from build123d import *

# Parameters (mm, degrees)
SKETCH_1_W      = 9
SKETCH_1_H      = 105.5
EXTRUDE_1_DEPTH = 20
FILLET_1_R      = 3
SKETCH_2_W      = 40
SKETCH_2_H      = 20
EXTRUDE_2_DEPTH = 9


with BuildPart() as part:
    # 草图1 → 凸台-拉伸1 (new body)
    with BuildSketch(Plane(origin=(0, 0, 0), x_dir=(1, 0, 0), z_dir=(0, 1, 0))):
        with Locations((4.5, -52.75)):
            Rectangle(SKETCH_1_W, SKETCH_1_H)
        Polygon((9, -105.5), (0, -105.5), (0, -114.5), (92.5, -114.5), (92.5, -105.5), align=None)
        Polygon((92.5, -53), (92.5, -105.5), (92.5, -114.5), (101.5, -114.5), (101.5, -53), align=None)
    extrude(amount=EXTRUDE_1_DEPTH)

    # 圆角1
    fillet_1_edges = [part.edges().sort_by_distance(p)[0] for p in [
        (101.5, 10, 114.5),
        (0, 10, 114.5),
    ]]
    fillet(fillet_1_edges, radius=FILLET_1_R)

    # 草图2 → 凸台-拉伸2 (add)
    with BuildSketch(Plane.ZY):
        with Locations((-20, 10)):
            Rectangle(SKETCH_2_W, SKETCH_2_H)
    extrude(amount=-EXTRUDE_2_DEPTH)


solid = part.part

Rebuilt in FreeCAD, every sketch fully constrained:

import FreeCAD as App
import Part
import Sketcher
from FreeCAD import Vector
Q = App.Units.Quantity


def edges_at(feature, points):
    """Names of the edges that pass closest to the given points."""
    edges = feature.Shape.Edges
    near = lambda p: min(range(len(edges)), key=lambda i: edges[i].distToShape(Part.Vertex(*p))[0])
    return sorted({f"Edge{near(p) + 1}" for p in points})


def add_polygon(sketch, points):
    """Adds a closed chain of lines whose ends are joined by coincident constraints."""
    first, n = sketch.GeometryCount, len(points)
    for a, b in zip(points, points[1:] + points[:1]):
        sketch.addGeometry(Part.LineSegment(App.Vector(*a, 0), App.Vector(*b, 0)), False)
    for i in range(n):
        sketch.addConstraint(Sketcher.Constraint("Coincident", first + i, 2, first + (i + 1) % n, 1))

doc = App.newDocument("Part")
params = doc.addObject("Spreadsheet::Sheet", "Params")
for row, (alias, value) in enumerate([
    ("sketch1_width", "9 mm"),
    ("sketch1_width2", "101.5 mm"),
    ("sketch1_height", "114.5 mm"),
    ("sketch1_height2", "61.5 mm"),
    ("sketch1_height3", "52.5 mm"),
    ("pad1_length", "20 mm"),
    ("fillet_radius", "3 mm"),
    ("sketch2_width", "20 mm"),
    ("sketch2_height", "40 mm"),
    ("pad2_length", "9 mm"),
], start=1):
    params.set(f"A{row}", alias)
    params.set(f"B{row}", "=" + value)
    params.setAlias(f"B{row}", alias)

body = doc.addObject("PartDesign::Body", "Body")

# Sketch on XZ plane
sketch1 = doc.addObject("Sketcher::SketchObject", "Sketch")
body.addObject(sketch1)
sketch1.AttachmentSupport = (doc.XZ_Plane, [""])
sketch1.MapMode = "FlatFace"
add_polygon(sketch1, [(0, 0), (0, 114), (102, 114), (102, 53), (92, 53), (92, 106), (9, 106), (9, 0)])  # lines 0-7
sketch1.addConstraint(Sketcher.Constraint("Vertical", 0))
sketch1.addConstraint(Sketcher.Constraint("Horizontal", 1))
sketch1.addConstraint(Sketcher.Constraint("Vertical", 2))
sketch1.addConstraint(Sketcher.Constraint("Horizontal", 3))
sketch1.addConstraint(Sketcher.Constraint("Vertical", 4))
sketch1.addConstraint(Sketcher.Constraint("Horizontal", 5))
sketch1.addConstraint(Sketcher.Constraint("Vertical", 6))
sketch1.addConstraint(Sketcher.Constraint("Horizontal", 7))
sketch1.addConstraint(Sketcher.Constraint("Coincident", 7, 2, -1, 1))
sketch1.addConstraint(Sketcher.Constraint("Equal", 3, 7))
sketch1.addConstraint(Sketcher.Constraint("DistanceX", 3, 2, 3, 1, Q("9 mm")))
sketch1.addConstraint(Sketcher.Constraint("DistanceX", 1, 1, 1, 2, Q("101.5 mm")))
sketch1.addConstraint(Sketcher.Constraint("DistanceY", 0, 1, 0, 2, Q("114.5 mm")))
sketch1.addConstraint(Sketcher.Constraint("DistanceY", 2, 2, 2, 1, Q("61.5 mm")))
sketch1.addConstraint(Sketcher.Constraint("DistanceY", 4, 1, 4, 2, Q("52.5 mm")))
sketch1.setExpression("Constraints[18]", "Params.sketch1_width")
sketch1.setExpression("Constraints[19]", "Params.sketch1_width2")
sketch1.setExpression("Constraints[20]", "Params.sketch1_height")
sketch1.setExpression("Constraints[21]", "Params.sketch1_height2")
sketch1.setExpression("Constraints[22]", "Params.sketch1_height3")
pad1 = doc.addObject("PartDesign::Pad", "Pad")
body.addObject(pad1)
pad1.Profile = sketch1
pad1.setExpression("Length", "Params.pad1_length")
pad1.Reversed = True
doc.recompute()

fillet = doc.addObject("PartDesign::Fillet", "Fillet")
body.addObject(fillet)
fillet.Base = (pad1, edges_at(pad1, [(101.5, 10, 114.5), (0, 10, 114.5)]))
fillet.setExpression("Radius", "Params.fillet_radius")

# Sketch on YZ plane
sketch2 = doc.addObject("Sketcher::SketchObject", "Sketch001")
body.addObject(sketch2)
sketch2.AttachmentSupport = (doc.YZ_Plane, [""])
sketch2.MapMode = "FlatFace"
add_polygon(sketch2, [(20, -40), (0, -40), (0, 0), (20, 0)])  # lines 0-3
sketch2.addConstraint(Sketcher.Constraint("Horizontal", 0))
sketch2.addConstraint(Sketcher.Constraint("Vertical", 1))
sketch2.addConstraint(Sketcher.Constraint("Horizontal", 2))
sketch2.addConstraint(Sketcher.Constraint("Vertical", 3))
sketch2.addConstraint(Sketcher.Constraint("Coincident", 1, 2, -1, 1))
sketch2.addConstraint(Sketcher.Constraint("DistanceX", 0, 2, 0, 1, Q("20 mm")))
sketch2.addConstraint(Sketcher.Constraint("DistanceY", 1, 1, 1, 2, Q("40 mm")))
sketch2.setExpression("Constraints[9]", "Params.sketch2_width")
sketch2.setExpression("Constraints[10]", "Params.sketch2_height")
pad2 = doc.addObject("PartDesign::Pad", "Pad001")
body.addObject(pad2)
pad2.Profile = sketch2
pad2.setExpression("Length", "Params.pad2_length")

doc.recompute()
